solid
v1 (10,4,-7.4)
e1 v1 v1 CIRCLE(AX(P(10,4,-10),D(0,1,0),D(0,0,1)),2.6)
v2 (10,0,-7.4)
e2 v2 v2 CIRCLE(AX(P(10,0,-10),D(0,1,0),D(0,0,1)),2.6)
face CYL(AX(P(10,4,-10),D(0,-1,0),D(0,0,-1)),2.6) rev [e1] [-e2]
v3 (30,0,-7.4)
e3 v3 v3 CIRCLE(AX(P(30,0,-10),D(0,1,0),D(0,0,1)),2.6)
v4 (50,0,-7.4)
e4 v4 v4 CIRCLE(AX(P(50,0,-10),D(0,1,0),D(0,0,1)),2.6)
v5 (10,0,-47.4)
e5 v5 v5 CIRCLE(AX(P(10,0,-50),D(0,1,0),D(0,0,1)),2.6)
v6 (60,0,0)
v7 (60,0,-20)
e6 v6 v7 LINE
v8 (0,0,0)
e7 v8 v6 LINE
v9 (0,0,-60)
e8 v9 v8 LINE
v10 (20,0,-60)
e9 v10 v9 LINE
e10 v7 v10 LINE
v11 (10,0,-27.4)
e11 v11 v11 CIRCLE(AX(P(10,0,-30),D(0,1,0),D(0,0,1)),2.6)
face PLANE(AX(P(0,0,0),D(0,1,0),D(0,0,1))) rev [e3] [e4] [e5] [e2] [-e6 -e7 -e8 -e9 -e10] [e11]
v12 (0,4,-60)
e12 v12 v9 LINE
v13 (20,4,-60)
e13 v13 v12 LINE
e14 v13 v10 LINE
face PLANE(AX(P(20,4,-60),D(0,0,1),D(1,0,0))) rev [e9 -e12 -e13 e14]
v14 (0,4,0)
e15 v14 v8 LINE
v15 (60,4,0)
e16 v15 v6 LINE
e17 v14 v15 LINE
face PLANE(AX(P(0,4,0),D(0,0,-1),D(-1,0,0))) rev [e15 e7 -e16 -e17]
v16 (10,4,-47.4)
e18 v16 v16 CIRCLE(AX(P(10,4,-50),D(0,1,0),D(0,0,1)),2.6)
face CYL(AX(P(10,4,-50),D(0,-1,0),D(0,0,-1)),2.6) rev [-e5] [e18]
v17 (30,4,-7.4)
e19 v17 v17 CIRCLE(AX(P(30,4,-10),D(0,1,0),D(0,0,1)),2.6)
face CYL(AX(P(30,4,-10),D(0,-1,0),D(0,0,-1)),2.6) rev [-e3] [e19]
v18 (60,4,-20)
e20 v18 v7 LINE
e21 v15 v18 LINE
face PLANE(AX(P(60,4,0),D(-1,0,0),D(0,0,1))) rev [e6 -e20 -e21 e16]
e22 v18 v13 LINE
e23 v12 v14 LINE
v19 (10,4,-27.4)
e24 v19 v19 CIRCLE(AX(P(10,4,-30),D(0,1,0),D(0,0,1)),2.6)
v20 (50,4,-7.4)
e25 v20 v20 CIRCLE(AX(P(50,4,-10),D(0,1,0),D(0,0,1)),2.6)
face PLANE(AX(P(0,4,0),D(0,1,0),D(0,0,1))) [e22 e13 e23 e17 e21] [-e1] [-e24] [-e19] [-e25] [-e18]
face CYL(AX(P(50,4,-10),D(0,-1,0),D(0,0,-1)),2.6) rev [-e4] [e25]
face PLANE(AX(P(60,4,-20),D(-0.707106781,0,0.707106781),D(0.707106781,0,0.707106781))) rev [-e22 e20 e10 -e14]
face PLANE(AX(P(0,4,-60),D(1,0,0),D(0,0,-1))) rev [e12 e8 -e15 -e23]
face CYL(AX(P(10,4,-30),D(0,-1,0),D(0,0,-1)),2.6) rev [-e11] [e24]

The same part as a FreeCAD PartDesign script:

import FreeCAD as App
import Part
import Sketcher
Q = App.Units.Quantity


def add_polygon(sketch, points):
    """Adds a closed chain of lines whose ends are joined by coincident constraints."""
    first, n = sketch.GeometryCount, len(points)
    for a, b in zip(points, points[1:] + points[:1]):
        sketch.addGeometry(Part.LineSegment(App.Vector(*a, 0), App.Vector(*b, 0)), False)
    for i in range(n):
        sketch.addConstraint(Sketcher.Constraint("Coincident", first + i, 2, first + (i + 1) % n, 1))

doc = App.newDocument("Part")
body = doc.addObject("PartDesign::Body", "Body")

# Sketch on XZ plane
sketch1 = doc.addObject("Sketcher::SketchObject", "Sketch")
body.addObject(sketch1)
sketch1.AttachmentSupport = (doc.XZ_Plane, [""])
sketch1.MapMode = "FlatFace"
add_polygon(sketch1, [(0, 0), (60, 0), (60, -20), (20, -60), (0, -60)])  # lines 0-4
sketch1.addGeometry(Part.Circle(App.Vector(10, -10, 0), App.Vector(0, 0, 1), 2.6), False)  # 5
sketch1.addGeometry(Part.Circle(App.Vector(30, -10, 0), App.Vector(0, 0, 1), 2.6), False)  # 6
sketch1.addGeometry(Part.Circle(App.Vector(50, -10, 0), App.Vector(0, 0, 1), 2.6), False)  # 7
sketch1.addGeometry(Part.Circle(App.Vector(10, -30, 0), App.Vector(0, 0, 1), 2.6), False)  # 8
sketch1.addGeometry(Part.Circle(App.Vector(10, -50, 0), App.Vector(0, 0, 1), 2.6), False)  # 9
sketch1.addConstraint([
    Sketcher.Constraint("Horizontal", 0),
    Sketcher.Constraint("Vertical", 1),
    Sketcher.Constraint("Horizontal", 3),
    Sketcher.Constraint("Vertical", 4),
    Sketcher.Constraint("Coincident", 4, 2, -1, 1),
    Sketcher.Constraint("Equal", 5, 6),
    Sketcher.Constraint("Equal", 6, 7),
    Sketcher.Constraint("Equal", 7, 8),
    Sketcher.Constraint("Equal", 8, 9),
    Sketcher.Constraint("Horizontal", 5, 3, 6, 3),
    Sketcher.Constraint("Horizontal", 6, 3, 7, 3),
    Sketcher.Constraint("Vertical", 5, 3, 8, 3),
    Sketcher.Constraint("Vertical", 8, 3, 9, 3),
    Sketcher.Constraint("Equal", 3, 1),
    Sketcher.Constraint("Equal", 0, 4),
    Sketcher.Constraint("Diameter", 5, Q("5.2 mm")),
    Sketcher.Constraint("DistanceX", 0, 1, 0, 2, Q("60 mm")),
    Sketcher.Constraint("DistanceX", 3, 2, 3, 1, Q("20 mm")),
    Sketcher.Constraint("DistanceX", -1, 1, 5, 3, Q("10 mm")),
    Sketcher.Constraint("DistanceY", 5, 3, -1, 1, Q("10 mm")),
    Sketcher.Constraint("DistanceX", -1, 1, 6, 3, Q("30 mm")),
    Sketcher.Constraint("DistanceX", -1, 1, 7, 3, Q("50 mm")),
    Sketcher.Constraint("DistanceY", 8, 3, -1, 1, Q("30 mm")),
    Sketcher.Constraint("DistanceY", 9, 3, -1, 1, Q("50 mm")),
])
pad1 = doc.addObject("PartDesign::Pad", "Pad")
body.addObject(pad1)
pad1.Profile = sketch1
pad1.Length = 4
pad1.Reversed = True

doc.recompute()
